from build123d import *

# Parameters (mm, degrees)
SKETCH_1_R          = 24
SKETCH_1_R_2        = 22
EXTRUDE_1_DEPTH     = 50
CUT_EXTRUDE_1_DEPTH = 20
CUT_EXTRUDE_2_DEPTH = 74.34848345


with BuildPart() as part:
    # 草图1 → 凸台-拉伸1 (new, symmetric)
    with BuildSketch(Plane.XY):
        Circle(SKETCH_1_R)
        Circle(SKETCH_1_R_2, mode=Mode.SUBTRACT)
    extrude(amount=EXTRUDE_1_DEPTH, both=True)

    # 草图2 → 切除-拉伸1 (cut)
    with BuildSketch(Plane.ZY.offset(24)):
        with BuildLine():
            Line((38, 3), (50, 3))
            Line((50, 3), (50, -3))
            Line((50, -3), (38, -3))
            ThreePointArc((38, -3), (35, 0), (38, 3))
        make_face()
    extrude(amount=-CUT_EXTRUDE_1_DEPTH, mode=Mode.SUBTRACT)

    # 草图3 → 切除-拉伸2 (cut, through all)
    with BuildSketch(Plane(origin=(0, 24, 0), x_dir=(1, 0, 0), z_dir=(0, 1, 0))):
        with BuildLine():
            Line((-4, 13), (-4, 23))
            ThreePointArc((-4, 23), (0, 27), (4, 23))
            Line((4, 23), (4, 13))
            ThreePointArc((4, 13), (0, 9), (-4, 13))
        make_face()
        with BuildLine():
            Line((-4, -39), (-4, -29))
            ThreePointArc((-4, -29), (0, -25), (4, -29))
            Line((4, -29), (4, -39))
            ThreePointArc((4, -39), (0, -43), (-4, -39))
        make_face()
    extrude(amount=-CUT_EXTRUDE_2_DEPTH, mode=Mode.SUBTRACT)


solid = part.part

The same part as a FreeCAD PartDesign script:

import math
import FreeCAD as App
import Part
import Sketcher
Q = App.Units.Quantity

doc = App.newDocument("Part")
body = doc.addObject("PartDesign::Body", "Body")

# Sketch on XY plane
sketch1 = doc.addObject("Sketcher::SketchObject", "Sketch")
body.addObject(sketch1)
sketch1.AttachmentSupport = (doc.XY_Plane, [""])
sketch1.MapMode = "FlatFace"
sketch1.addGeometry([
    Part.Circle(App.Vector(0, 0, 0), App.Vector(0, 0, 1), 24),
    Part.Circle(App.Vector(0, 0, 0), App.Vector(0, 0, 1), 22),
], False)
sketch1.addConstraint([
    Sketcher.Constraint("Coincident", 0, 3, -1, 1),
    Sketcher.Constraint("Coincident", 1, 3, -1, 1),
    Sketcher.Constraint("Diameter", 0, Q("48 mm")),
    Sketcher.Constraint("Diameter", 1, Q("44 mm")),
])
pad1 = doc.addObject("PartDesign::Pad", "Pad")
body.addObject(pad1)
pad1.Profile = sketch1
pad1.Length = 100
pad1.Midplane = True

# Sketch on YZ plane
sketch2 = doc.addObject("Sketcher::SketchObject", "Sketch001")
body.addObject(sketch2)
sketch2.AttachmentSupport = (doc.YZ_Plane, [""])
sketch2.MapMode = "FlatFace"
sketch2.AttachmentOffset = App.Placement(App.Vector(0, 0, -24), App.Rotation())
sketch2.addGeometry([
    Part.LineSegment(App.Vector(3, 50, 0), App.Vector(3, 38, 0)),
    Part.ArcOfCircle(Part.Circle(App.Vector(0, 38, 0), App.Vector(0, 0, 1), 3), math.radians(180), math.radians(360)),
    Part.LineSegment(App.Vector(-3, 38, 0), App.Vector(-3, 50, 0)),
    Part.LineSegment(App.Vector(-3, 50, 0), App.Vector(3, 50, 0)),
], False)
sketch2.addConstraint([
    Sketcher.Constraint("Tangent", 0, 2, 1, 2),
    Sketcher.Constraint("Tangent", 1, 1, 2, 1),
    Sketcher.Constraint("Coincident", 2, 2, 3, 1),
    Sketcher.Constraint("Coincident", 3, 2, 0, 1),
    Sketcher.Constraint("Vertical", 0),
    Sketcher.Constraint("Vertical", 2),
    Sketcher.Constraint("Horizontal", 3),
    Sketcher.Constraint("PointOnObject", 1, 3, -2),
    Sketcher.Constraint("Radius", 1, Q("3 mm")),
    Sketcher.Constraint("DistanceY", 0, 2, 0, 1, Q("12 mm")),
    Sketcher.Constraint("DistanceY", -1, 1, 1, 3, Q("38 mm")),
])
pocket1 = doc.addObject("PartDesign::Pocket", "Pocket")
body.addObject(pocket1)
pocket1.Profile = sketch2
pocket1.Length = 20
pocket1.Reversed = True

# Sketch on XZ plane
sketch3 = doc.addObject("Sketcher::SketchObject", "Sketch002")
body.addObject(sketch3)
sketch3.AttachmentSupport = (doc.XZ_Plane, [""])
sketch3.MapMode = "FlatFace"
sketch3.AttachmentOffset = App.Placement(App.Vector(0, 0, -24), App.Rotation())
sketch3.addGeometry([
    Part.LineSegment(App.Vector(-4, -23, 0), App.Vector(-4, -13, 0)),  # 0
    Part.ArcOfCircle(Part.Circle(App.Vector(0, -13, 0), App.Vector(0, 0, 1), 4), math.radians(0), math.radians(180)),  # 1
    Part.LineSegment(App.Vector(4, -13, 0), App.Vector(4, -23, 0)),  # 2
    Part.ArcOfCircle(Part.Circle(App.Vector(0, -23, 0), App.Vector(0, 0, 1), 4), math.radians(180), math.radians(360)),  # 3
    Part.LineSegment(App.Vector(-4, 29, 0), App.Vector(-4, 39, 0)),  # 4
    Part.ArcOfCircle(Part.Circle(App.Vector(0, 39, 0), App.Vector(0, 0, 1), 4), math.radians(0), math.radians(180)),  # 5
    Part.LineSegment(App.Vector(4, 39, 0), App.Vector(4, 29, 0)),  # 6
    Part.ArcOfCircle(Part.Circle(App.Vector(0, 29, 0), App.Vector(0, 0, 1), 4), math.radians(180), math.radians(360)),  # 7
], False)
sketch3.addConstraint([
    Sketcher.Constraint("Tangent", 0, 2, 1, 2),
    Sketcher.Constraint("Tangent", 1, 1, 2, 1),
    Sketcher.Constraint("Tangent", 2, 2, 3, 2),
    Sketcher.Constraint("Tangent", 3, 1, 0, 1),
    Sketcher.Constraint("Tangent", 4, 2, 5, 2),
    Sketcher.Constraint("Tangent", 5, 1, 6, 1),
    Sketcher.Constraint("Tangent", 6, 2, 7, 2),
    Sketcher.Constraint("Tangent", 7, 1, 4, 1),
    Sketcher.Constraint("Vertical", 0),
    Sketcher.Constraint("Vertical", 2),
    Sketcher.Constraint("Vertical", 4),
    Sketcher.Constraint("Vertical", 6),
    Sketcher.Constraint("Equal", 3, 5),
    Sketcher.Constraint("PointOnObject", 1, 3, -2),
    Sketcher.Constraint("PointOnObject", 5, 3, -2),
    Sketcher.Constraint("Equal", 2, 4),
    Sketcher.Constraint("Radius", 1, Q("4 mm")),
    Sketcher.Constraint("DistanceY", 0, 1, 0, 2, Q("10 mm")),
    Sketcher.Constraint("DistanceY", 1, 3, -1, 1, Q("13 mm")),
    Sketcher.Constraint("DistanceY", -1, 1, 5, 3, Q("39 mm")),
])
pocket2 = doc.addObject("PartDesign::Pocket", "Pocket001")
body.addObject(pocket2)
pocket2.Profile = sketch3
pocket2.Type = "ThroughAll"
pocket2.Reversed = True

doc.recompute()
